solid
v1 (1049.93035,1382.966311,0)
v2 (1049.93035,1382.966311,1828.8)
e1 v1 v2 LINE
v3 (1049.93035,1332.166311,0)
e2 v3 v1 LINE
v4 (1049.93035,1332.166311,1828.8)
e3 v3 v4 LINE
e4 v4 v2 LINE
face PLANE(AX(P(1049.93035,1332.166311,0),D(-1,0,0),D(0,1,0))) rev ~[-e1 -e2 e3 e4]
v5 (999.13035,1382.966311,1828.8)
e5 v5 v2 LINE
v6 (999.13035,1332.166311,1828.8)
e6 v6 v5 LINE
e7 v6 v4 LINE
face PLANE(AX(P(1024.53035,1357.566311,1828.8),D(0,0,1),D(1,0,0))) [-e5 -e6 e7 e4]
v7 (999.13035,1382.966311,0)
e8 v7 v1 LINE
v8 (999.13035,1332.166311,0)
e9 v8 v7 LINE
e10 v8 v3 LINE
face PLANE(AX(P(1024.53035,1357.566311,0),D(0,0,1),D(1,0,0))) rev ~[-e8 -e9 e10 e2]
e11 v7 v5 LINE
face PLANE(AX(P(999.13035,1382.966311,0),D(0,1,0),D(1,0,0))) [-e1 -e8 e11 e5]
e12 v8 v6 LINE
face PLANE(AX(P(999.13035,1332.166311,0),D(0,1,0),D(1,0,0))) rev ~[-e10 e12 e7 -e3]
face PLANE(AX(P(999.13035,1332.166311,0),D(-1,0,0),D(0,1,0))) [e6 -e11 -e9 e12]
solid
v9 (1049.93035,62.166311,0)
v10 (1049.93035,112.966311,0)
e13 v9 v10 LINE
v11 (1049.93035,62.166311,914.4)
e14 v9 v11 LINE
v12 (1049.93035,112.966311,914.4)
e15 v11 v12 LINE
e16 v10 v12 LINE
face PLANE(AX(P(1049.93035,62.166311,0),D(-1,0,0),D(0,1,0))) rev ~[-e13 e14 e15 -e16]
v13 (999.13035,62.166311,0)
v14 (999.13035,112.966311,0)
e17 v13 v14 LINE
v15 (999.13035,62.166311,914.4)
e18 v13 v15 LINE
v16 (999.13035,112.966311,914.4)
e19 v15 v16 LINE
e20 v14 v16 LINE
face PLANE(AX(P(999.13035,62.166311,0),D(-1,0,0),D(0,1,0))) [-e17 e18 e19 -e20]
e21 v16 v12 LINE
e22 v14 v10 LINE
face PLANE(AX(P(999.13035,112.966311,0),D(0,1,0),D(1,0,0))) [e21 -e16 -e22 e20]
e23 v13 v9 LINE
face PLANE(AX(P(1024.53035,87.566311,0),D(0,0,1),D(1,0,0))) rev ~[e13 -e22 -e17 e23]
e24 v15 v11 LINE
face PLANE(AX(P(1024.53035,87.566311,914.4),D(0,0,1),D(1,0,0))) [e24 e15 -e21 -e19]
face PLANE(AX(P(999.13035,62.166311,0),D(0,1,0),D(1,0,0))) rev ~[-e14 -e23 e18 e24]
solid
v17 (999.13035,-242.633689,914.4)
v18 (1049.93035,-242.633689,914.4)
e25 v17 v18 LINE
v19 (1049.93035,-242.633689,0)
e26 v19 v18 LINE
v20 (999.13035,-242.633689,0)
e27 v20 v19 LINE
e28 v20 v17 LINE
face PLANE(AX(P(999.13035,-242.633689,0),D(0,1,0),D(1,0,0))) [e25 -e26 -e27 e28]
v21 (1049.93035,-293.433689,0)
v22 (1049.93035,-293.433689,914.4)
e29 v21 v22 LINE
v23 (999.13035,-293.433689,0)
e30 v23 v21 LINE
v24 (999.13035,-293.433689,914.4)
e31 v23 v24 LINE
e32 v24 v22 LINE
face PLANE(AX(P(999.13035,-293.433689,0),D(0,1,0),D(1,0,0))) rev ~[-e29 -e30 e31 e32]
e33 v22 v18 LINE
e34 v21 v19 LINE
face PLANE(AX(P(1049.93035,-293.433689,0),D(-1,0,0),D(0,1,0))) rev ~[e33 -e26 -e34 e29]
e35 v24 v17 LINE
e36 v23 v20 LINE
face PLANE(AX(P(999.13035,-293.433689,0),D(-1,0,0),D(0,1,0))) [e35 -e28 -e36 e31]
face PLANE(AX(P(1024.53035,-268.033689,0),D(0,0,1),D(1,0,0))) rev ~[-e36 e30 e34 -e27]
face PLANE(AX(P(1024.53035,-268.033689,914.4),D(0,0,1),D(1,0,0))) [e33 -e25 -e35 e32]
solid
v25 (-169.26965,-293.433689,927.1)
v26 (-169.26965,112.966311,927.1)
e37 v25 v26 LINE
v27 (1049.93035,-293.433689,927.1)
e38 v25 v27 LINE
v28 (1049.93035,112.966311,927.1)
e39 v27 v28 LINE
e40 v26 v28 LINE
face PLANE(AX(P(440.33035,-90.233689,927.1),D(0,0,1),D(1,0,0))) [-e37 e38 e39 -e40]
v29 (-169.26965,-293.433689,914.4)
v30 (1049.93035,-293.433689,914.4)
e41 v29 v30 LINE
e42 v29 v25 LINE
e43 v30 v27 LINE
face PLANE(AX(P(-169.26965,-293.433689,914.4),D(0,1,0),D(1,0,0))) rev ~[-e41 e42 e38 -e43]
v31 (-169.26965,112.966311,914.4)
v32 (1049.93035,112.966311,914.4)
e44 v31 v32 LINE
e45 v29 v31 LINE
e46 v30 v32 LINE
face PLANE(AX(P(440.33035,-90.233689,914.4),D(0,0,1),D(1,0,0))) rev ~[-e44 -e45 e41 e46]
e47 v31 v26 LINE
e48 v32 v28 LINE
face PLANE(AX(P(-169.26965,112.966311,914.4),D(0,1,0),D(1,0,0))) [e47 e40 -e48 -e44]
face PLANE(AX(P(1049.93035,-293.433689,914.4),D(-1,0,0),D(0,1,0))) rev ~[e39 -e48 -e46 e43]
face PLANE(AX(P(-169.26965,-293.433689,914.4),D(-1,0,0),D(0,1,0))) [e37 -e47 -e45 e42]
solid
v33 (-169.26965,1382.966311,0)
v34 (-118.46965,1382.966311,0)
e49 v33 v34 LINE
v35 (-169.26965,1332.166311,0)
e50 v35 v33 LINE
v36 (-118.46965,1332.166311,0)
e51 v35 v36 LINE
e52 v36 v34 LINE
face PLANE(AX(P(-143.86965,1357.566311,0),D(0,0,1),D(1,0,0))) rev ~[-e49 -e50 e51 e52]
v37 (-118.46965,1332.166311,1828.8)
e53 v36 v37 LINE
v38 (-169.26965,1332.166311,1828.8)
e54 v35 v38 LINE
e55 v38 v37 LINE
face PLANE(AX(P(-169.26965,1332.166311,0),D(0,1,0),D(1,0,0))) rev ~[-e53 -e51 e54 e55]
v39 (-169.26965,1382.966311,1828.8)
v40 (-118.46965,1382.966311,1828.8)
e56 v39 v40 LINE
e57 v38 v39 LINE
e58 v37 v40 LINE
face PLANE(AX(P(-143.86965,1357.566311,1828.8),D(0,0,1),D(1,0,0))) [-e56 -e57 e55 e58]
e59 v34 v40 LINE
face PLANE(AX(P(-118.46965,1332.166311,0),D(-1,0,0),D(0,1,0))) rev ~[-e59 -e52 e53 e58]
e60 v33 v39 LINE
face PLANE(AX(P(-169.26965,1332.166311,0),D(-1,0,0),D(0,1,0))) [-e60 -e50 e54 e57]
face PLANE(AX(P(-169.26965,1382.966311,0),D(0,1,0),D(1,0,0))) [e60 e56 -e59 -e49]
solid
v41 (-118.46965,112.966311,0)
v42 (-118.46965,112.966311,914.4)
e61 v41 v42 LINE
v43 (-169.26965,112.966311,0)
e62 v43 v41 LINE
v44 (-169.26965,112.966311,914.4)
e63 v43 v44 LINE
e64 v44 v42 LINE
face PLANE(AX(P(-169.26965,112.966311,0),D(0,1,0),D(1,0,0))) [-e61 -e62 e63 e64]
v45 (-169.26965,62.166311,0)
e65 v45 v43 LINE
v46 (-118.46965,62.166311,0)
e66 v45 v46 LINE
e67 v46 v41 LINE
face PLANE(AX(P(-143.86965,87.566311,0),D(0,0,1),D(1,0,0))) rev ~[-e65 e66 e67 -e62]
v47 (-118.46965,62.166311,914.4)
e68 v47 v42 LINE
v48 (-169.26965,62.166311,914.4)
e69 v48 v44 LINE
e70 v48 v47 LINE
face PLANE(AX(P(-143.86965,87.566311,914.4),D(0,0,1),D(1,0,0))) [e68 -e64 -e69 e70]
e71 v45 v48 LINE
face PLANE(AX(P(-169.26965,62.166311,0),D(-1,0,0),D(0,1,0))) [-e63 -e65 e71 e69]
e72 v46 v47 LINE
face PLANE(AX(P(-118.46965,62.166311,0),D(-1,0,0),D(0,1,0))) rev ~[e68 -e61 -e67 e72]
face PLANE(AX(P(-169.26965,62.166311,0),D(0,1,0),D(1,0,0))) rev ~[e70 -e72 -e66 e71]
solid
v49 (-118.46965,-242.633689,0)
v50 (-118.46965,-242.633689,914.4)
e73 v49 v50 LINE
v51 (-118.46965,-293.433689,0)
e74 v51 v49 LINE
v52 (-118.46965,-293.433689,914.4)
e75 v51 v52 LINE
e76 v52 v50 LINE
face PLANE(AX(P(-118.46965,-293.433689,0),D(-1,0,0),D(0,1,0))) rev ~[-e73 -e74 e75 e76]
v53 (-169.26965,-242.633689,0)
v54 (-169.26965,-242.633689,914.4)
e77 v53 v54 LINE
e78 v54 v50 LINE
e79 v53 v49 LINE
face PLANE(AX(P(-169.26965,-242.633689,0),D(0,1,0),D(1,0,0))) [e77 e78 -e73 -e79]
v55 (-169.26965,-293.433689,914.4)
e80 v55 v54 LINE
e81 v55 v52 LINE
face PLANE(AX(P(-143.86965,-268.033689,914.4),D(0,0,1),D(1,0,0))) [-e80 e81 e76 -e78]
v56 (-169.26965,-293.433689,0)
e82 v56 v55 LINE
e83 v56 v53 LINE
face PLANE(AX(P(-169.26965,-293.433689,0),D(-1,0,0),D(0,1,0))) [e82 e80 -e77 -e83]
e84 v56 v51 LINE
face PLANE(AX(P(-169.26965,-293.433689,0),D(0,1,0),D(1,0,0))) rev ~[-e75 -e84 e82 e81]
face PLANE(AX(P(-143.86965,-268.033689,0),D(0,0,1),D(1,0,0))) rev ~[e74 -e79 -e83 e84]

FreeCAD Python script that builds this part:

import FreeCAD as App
import Part
import Sketcher

V = App.Vector
Q = App.Units.Quantity

doc = App.newDocument("Part")
params = doc.addObject("Spreadsheet::Sheet", "Params")
for row, (alias, value) in enumerate([
    ("sketch1_width", "2 in"),
    ("pad1_length", "36 in"),
    ("sketch2_width", "48 in"),
    ("sketch2_height", "16 in"),
    ("pad2_length", "0.5 in"),
    ("sketch3_width", "2 in"),
    ("pad3_length", "72 in"),
], start=1):
    params.set(f"A{row}", alias)
    params.set(f"B{row}", "=" + value)
    params.setAlias(f"B{row}", alias)

body = doc.addObject("PartDesign::Body", "Body")
body.AllowCompound = True

# Sketch on XY plane
sketch1 = body.newObject("Sketcher::SketchObject", "Sketch")
sketch1.AttachmentSupport = (doc.getObject("XY_Plane"), [""])
sketch1.MapMode = "FlatFace"
sketch1.addGeometry(Part.LineSegment(V(-169, 113, 0), V(-169, 62, 0)), False)
sketch1.addGeometry(Part.LineSegment(V(-169, 62, 0), V(-118, 62, 0)), False)
sketch1.addGeometry(Part.LineSegment(V(-118, 62, 0), V(-118, 113, 0)), False)
sketch1.addGeometry(Part.LineSegment(V(-118, 113, 0), V(-169, 113, 0)), False)
sketch1.addGeometry(Part.LineSegment(V(999, 113, 0), V(999, 62, 0)), False)
sketch1.addGeometry(Part.LineSegment(V(999, 62, 0), V(1050, 62, 0)), False)
sketch1.addGeometry(Part.LineSegment(V(1050, 62, 0), V(1050, 113, 0)), False)
sketch1.addGeometry(Part.LineSegment(V(1050, 113, 0), V(999, 113, 0)), False)
sketch1.addGeometry(Part.LineSegment(V(-169, -243, 0), V(-169, -293, 0)), False)
sketch1.addGeometry(Part.LineSegment(V(-169, -293, 0), V(-118, -293, 0)), False)
sketch1.addGeometry(Part.LineSegment(V(-118, -293, 0), V(-118, -243, 0)), False)
sketch1.addGeometry(Part.LineSegment(V(-118, -243, 0), V(-169, -243, 0)), False)
sketch1.addGeometry(Part.LineSegment(V(999, -243, 0), V(999, -293, 0)), False)
sketch1.addGeometry(Part.LineSegment(V(999, -293, 0), V(1050, -293, 0)), False)
sketch1.addGeometry(Part.LineSegment(V(1050, -293, 0), V(1050, -243, 0)), False)
sketch1.addGeometry(Part.LineSegment(V(1050, -243, 0), V(999, -243, 0)), False)
sketch1.addConstraint(Sketcher.Constraint("Coincident", 0, 2, 1, 1))
sketch1.addConstraint(Sketcher.Constraint("Coincident", 1, 2, 2, 1))
sketch1.addConstraint(Sketcher.Constraint("Coincident", 2, 2, 3, 1))
sketch1.addConstraint(Sketcher.Constraint("Coincident", 3, 2, 0, 1))
sketch1.addConstraint(Sketcher.Constraint("Coincident", 4, 2, 5, 1))
sketch1.addConstraint(Sketcher.Constraint("Coincident", 5, 2, 6, 1))
sketch1.addConstraint(Sketcher.Constraint("Coincident", 6, 2, 7, 1))
sketch1.addConstraint(Sketcher.Constraint("Coincident", 7, 2, 4, 1))
sketch1.addConstraint(Sketcher.Constraint("Coincident", 8, 2, 9, 1))
sketch1.addConstraint(Sketcher.Constraint("Coincident", 9, 2, 10, 1))
sketch1.addConstraint(Sketcher.Constraint("Coincident", 10, 2, 11, 1))
sketch1.addConstraint(Sketcher.Constraint("Coincident", 11, 2, 8, 1))
sketch1.addConstraint(Sketcher.Constraint("Coincident", 12, 2, 13, 1))
sketch1.addConstraint(Sketcher.Constraint("Coincident", 13, 2, 14, 1))
sketch1.addConstraint(Sketcher.Constraint("Coincident", 14, 2, 15, 1))
sketch1.addConstraint(Sketcher.Constraint("Coincident", 15, 2, 12, 1))
sketch1.addConstraint(Sketcher.Constraint("Vertical", 0))
sketch1.addConstraint(Sketcher.Constraint("Horizontal", 1))
sketch1.addConstraint(Sketcher.Constraint("Vertical", 2))
sketch1.addConstraint(Sketcher.Constraint("Horizontal", 3))
sketch1.addConstraint(Sketcher.Constraint("Vertical", 4))
sketch1.addConstraint(Sketcher.Constraint("Horizontal", 5))
sketch1.addConstraint(Sketcher.Constraint("Vertical", 6))
sketch1.addConstraint(Sketcher.Constraint("Horizontal", 7))
sketch1.addConstraint(Sketcher.Constraint("Vertical", 8))
sketch1.addConstraint(Sketcher.Constraint("Horizontal", 9))
sketch1.addConstraint(Sketcher.Constraint("Vertical", 10))
sketch1.addConstraint(Sketcher.Constraint("Horizontal", 11))
sketch1.addConstraint(Sketcher.Constraint("Vertical", 12))
sketch1.addConstraint(Sketcher.Constraint("Horizontal", 13))
sketch1.addConstraint(Sketcher.Constraint("Vertical", 14))
sketch1.addConstraint(Sketcher.Constraint("Horizontal", 15))
sketch1.addConstraint(Sketcher.Constraint("Horizontal", 1, 2, 4, 2))
sketch1.addConstraint(Sketcher.Constraint("Horizontal", 3, 2, 6, 2))
sketch1.addConstraint(Sketcher.Constraint("Horizontal", 9, 2, 12, 2))
sketch1.addConstraint(Sketcher.Constraint("Horizontal", 11, 2, 14, 2))
sketch1.addConstraint(Sketcher.Constraint("Vertical", 3, 2, 8, 2))
sketch1.addConstraint(Sketcher.Constraint("Vertical", 2, 2, 9, 2))
sketch1.addConstraint(Sketcher.Constraint("Vertical", 7, 2, 12, 2))
sketch1.addConstraint(Sketcher.Constraint("Vertical", 6, 2, 13, 2))
sketch1.addConstraint(Sketcher.Constraint("Equal", 3, 5))
sketch1.addConstraint(Sketcher.Constraint("Equal", 15, 0))
sketch1.addConstraint(Sketcher.Constraint("Equal", 6, 8))
sketch1.addConstraint(Sketcher.Constraint("DistanceX", 1, 1, 1, 2, Q("2 in")))
sketch1.addConstraint(Sketcher.Constraint("DistanceX", 1, 2, 4, 2, Q("44 in")))
sketch1.addConstraint(Sketcher.Constraint("DistanceY", 8, 2, 0, 2, Q("14 in")))
sketch1.addConstraint(Sketcher.Constraint("DistanceX", 0, 2, -1, 1, 169.26965))
sketch1.addConstraint(Sketcher.Constraint("DistanceY", -1, 1, 0, 2, 62.166311))
sketch1.setExpression("Constraints[43]", "Params.sketch1_width")
pad1 = body.newObject("PartDesign::Pad", "Pad")
pad1.Profile = sketch1
pad1.setExpression("Length", "Params.pad1_length")
body2 = doc.addObject("PartDesign::Body", "Body001")

# Sketch on XY plane
sketch2 = body2.newObject("Sketcher::SketchObject", "Sketch001")
sketch2.AttachmentSupport = (doc.getObject("XY_Plane001"), [""])
sketch2.MapMode = "FlatFace"
sketch2.AttachmentOffset = App.Placement(V(0, 0, 36 * 25.4), App.Rotation())
sketch2.addGeometry(Part.LineSegment(V(-169, 113, 0), V(-169, -293, 0)), False)
sketch2.addGeometry(Part.LineSegment(V(-169, -293, 0), V(1050, -293, 0)), False)
sketch2.addGeometry(Part.LineSegment(V(1050, -293, 0), V(1050, 113, 0)), False)
sketch2.addGeometry(Part.LineSegment(V(1050, 113, 0), V(-169, 113, 0)), False)
sketch2.addConstraint(Sketcher.Constraint("Coincident", 0, 2, 1, 1))
sketch2.addConstraint(Sketcher.Constraint("Coincident", 1, 2, 2, 1))
sketch2.addConstraint(Sketcher.Constraint("Coincident", 2, 2, 3, 1))
sketch2.addConstraint(Sketcher.Constraint("Coincident", 3, 2, 0, 1))
sketch2.addConstraint(Sketcher.Constraint("Vertical", 0))
sketch2.addConstraint(Sketcher.Constraint("Horizontal", 1))
sketch2.addConstraint(Sketcher.Constraint("Vertical", 2))
sketch2.addConstraint(Sketcher.Constraint("Horizontal", 3))
sketch2.addConstraint(Sketcher.Constraint("DistanceX", 1, 1, 1, 2, Q("48 in")))
sketch2.addConstraint(Sketcher.Constraint("DistanceY", 0, 2, 0, 1, Q("16 in")))
sketch2.addConstraint(Sketcher.Constraint("DistanceX", 0, 2, -1, 1, 169.26965))
sketch2.addConstraint(Sketcher.Constraint("DistanceY", 0, 2, -1, 1, 293.433689))
sketch2.setExpression("Constraints[8]", "Params.sketch2_width")
sketch2.setExpression("Constraints[9]", "Params.sketch2_height")
pad2 = body2.newObject("PartDesign::Pad", "Pad001")
pad2.Profile = sketch2
pad2.setExpression("Length", "Params.pad2_length")
body3 = doc.addObject("PartDesign::Body", "Body002")
body3.AllowCompound = True

# Sketch on XY plane
sketch3 = body3.newObject("Sketcher::SketchObject", "Sketch002")
sketch3.AttachmentSupport = (doc.getObject("XY_Plane002"), [""])
sketch3.MapMode = "FlatFace"
sketch3.addGeometry(Part.LineSegment(V(-169, 1383, 0), V(-169, 1332, 0)), False)
sketch3.addGeometry(Part.LineSegment(V(-169, 1332, 0), V(-118, 1332, 0)), False)
sketch3.addGeometry(Part.LineSegment(V(-118, 1332, 0), V(-118, 1383, 0)), False)
sketch3.addGeometry(Part.LineSegment(V(-118, 1383, 0), V(-169, 1383, 0)), False)
sketch3.addGeometry(Part.LineSegment(V(999, 1383, 0), V(999, 1332, 0)), False)
sketch3.addGeometry(Part.LineSegment(V(999, 1332, 0), V(1050, 1332, 0)), False)
sketch3.addGeometry(Part.LineSegment(V(1050, 1332, 0), V(1050, 1383, 0)), False)
sketch3.addGeometry(Part.LineSegment(V(1050, 1383, 0), V(999, 1383, 0)), False)
sketch3.addConstraint(Sketcher.Constraint("Coincident", 0, 2, 1, 1))
sketch3.addConstraint(Sketcher.Constraint("Coincident", 1, 2, 2, 1))
sketch3.addConstraint(Sketcher.Constraint("Coincident", 2, 2, 3, 1))
sketch3.addConstraint(Sketcher.Constraint("Coincident", 3, 2, 0, 1))
sketch3.addConstraint(Sketcher.Constraint("Coincident", 4, 2, 5, 1))
sketch3.addConstraint(Sketcher.Constraint("Coincident", 5, 2, 6, 1))
sketch3.addConstraint(Sketcher.Constraint("Coincident", 6, 2, 7, 1))
sketch3.addConstraint(Sketcher.Constraint("Coincident", 7, 2, 4, 1))
sketch3.addConstraint(Sketcher.Constraint("Vertical", 0))
sketch3.addConstraint(Sketcher.Constraint("Horizontal", 1))
sketch3.addConstraint(Sketcher.Constraint("Vertical", 2))
sketch3.addConstraint(Sketcher.Constraint("Horizontal", 3))
sketch3.addConstraint(Sketcher.Constraint("Vertical", 4))
sketch3.addConstraint(Sketcher.Constraint("Horizontal", 5))
sketch3.addConstraint(Sketcher.Constraint("Vertical", 6))
sketch3.addConstraint(Sketcher.Constraint("Horizontal", 7))
sketch3.addConstraint(Sketcher.Constraint("Horizontal", 1, 2, 4, 2))
sketch3.addConstraint(Sketcher.Constraint("Horizontal", 3, 2, 6, 2))
sketch3.addConstraint(Sketcher.Constraint("Equal", 3, 5))
sketch3.addConstraint(Sketcher.Constraint("Equal", 7, 0))
sketch3.addConstraint(Sketcher.Constraint("DistanceX", 1, 1, 1, 2, Q("2 in")))
sketch3.addConstraint(Sketcher.Constraint("DistanceX", 1, 2, 4, 2, Q("44 in")))
sketch3.addConstraint(Sketcher.Constraint("DistanceX", 0, 2, -1, 1, 169.26965))
sketch3.addConstraint(Sketcher.Constraint("DistanceY", -1, 1, 0, 2, 1332.166311))
sketch3.setExpression("Constraints[20]", "Params.sketch3_width")
pad3 = body3.newObject("PartDesign::Pad", "Pad002")
pad3.Profile = sketch3
pad3.setExpression("Length", "Params.pad3_length")

doc.recompute()
